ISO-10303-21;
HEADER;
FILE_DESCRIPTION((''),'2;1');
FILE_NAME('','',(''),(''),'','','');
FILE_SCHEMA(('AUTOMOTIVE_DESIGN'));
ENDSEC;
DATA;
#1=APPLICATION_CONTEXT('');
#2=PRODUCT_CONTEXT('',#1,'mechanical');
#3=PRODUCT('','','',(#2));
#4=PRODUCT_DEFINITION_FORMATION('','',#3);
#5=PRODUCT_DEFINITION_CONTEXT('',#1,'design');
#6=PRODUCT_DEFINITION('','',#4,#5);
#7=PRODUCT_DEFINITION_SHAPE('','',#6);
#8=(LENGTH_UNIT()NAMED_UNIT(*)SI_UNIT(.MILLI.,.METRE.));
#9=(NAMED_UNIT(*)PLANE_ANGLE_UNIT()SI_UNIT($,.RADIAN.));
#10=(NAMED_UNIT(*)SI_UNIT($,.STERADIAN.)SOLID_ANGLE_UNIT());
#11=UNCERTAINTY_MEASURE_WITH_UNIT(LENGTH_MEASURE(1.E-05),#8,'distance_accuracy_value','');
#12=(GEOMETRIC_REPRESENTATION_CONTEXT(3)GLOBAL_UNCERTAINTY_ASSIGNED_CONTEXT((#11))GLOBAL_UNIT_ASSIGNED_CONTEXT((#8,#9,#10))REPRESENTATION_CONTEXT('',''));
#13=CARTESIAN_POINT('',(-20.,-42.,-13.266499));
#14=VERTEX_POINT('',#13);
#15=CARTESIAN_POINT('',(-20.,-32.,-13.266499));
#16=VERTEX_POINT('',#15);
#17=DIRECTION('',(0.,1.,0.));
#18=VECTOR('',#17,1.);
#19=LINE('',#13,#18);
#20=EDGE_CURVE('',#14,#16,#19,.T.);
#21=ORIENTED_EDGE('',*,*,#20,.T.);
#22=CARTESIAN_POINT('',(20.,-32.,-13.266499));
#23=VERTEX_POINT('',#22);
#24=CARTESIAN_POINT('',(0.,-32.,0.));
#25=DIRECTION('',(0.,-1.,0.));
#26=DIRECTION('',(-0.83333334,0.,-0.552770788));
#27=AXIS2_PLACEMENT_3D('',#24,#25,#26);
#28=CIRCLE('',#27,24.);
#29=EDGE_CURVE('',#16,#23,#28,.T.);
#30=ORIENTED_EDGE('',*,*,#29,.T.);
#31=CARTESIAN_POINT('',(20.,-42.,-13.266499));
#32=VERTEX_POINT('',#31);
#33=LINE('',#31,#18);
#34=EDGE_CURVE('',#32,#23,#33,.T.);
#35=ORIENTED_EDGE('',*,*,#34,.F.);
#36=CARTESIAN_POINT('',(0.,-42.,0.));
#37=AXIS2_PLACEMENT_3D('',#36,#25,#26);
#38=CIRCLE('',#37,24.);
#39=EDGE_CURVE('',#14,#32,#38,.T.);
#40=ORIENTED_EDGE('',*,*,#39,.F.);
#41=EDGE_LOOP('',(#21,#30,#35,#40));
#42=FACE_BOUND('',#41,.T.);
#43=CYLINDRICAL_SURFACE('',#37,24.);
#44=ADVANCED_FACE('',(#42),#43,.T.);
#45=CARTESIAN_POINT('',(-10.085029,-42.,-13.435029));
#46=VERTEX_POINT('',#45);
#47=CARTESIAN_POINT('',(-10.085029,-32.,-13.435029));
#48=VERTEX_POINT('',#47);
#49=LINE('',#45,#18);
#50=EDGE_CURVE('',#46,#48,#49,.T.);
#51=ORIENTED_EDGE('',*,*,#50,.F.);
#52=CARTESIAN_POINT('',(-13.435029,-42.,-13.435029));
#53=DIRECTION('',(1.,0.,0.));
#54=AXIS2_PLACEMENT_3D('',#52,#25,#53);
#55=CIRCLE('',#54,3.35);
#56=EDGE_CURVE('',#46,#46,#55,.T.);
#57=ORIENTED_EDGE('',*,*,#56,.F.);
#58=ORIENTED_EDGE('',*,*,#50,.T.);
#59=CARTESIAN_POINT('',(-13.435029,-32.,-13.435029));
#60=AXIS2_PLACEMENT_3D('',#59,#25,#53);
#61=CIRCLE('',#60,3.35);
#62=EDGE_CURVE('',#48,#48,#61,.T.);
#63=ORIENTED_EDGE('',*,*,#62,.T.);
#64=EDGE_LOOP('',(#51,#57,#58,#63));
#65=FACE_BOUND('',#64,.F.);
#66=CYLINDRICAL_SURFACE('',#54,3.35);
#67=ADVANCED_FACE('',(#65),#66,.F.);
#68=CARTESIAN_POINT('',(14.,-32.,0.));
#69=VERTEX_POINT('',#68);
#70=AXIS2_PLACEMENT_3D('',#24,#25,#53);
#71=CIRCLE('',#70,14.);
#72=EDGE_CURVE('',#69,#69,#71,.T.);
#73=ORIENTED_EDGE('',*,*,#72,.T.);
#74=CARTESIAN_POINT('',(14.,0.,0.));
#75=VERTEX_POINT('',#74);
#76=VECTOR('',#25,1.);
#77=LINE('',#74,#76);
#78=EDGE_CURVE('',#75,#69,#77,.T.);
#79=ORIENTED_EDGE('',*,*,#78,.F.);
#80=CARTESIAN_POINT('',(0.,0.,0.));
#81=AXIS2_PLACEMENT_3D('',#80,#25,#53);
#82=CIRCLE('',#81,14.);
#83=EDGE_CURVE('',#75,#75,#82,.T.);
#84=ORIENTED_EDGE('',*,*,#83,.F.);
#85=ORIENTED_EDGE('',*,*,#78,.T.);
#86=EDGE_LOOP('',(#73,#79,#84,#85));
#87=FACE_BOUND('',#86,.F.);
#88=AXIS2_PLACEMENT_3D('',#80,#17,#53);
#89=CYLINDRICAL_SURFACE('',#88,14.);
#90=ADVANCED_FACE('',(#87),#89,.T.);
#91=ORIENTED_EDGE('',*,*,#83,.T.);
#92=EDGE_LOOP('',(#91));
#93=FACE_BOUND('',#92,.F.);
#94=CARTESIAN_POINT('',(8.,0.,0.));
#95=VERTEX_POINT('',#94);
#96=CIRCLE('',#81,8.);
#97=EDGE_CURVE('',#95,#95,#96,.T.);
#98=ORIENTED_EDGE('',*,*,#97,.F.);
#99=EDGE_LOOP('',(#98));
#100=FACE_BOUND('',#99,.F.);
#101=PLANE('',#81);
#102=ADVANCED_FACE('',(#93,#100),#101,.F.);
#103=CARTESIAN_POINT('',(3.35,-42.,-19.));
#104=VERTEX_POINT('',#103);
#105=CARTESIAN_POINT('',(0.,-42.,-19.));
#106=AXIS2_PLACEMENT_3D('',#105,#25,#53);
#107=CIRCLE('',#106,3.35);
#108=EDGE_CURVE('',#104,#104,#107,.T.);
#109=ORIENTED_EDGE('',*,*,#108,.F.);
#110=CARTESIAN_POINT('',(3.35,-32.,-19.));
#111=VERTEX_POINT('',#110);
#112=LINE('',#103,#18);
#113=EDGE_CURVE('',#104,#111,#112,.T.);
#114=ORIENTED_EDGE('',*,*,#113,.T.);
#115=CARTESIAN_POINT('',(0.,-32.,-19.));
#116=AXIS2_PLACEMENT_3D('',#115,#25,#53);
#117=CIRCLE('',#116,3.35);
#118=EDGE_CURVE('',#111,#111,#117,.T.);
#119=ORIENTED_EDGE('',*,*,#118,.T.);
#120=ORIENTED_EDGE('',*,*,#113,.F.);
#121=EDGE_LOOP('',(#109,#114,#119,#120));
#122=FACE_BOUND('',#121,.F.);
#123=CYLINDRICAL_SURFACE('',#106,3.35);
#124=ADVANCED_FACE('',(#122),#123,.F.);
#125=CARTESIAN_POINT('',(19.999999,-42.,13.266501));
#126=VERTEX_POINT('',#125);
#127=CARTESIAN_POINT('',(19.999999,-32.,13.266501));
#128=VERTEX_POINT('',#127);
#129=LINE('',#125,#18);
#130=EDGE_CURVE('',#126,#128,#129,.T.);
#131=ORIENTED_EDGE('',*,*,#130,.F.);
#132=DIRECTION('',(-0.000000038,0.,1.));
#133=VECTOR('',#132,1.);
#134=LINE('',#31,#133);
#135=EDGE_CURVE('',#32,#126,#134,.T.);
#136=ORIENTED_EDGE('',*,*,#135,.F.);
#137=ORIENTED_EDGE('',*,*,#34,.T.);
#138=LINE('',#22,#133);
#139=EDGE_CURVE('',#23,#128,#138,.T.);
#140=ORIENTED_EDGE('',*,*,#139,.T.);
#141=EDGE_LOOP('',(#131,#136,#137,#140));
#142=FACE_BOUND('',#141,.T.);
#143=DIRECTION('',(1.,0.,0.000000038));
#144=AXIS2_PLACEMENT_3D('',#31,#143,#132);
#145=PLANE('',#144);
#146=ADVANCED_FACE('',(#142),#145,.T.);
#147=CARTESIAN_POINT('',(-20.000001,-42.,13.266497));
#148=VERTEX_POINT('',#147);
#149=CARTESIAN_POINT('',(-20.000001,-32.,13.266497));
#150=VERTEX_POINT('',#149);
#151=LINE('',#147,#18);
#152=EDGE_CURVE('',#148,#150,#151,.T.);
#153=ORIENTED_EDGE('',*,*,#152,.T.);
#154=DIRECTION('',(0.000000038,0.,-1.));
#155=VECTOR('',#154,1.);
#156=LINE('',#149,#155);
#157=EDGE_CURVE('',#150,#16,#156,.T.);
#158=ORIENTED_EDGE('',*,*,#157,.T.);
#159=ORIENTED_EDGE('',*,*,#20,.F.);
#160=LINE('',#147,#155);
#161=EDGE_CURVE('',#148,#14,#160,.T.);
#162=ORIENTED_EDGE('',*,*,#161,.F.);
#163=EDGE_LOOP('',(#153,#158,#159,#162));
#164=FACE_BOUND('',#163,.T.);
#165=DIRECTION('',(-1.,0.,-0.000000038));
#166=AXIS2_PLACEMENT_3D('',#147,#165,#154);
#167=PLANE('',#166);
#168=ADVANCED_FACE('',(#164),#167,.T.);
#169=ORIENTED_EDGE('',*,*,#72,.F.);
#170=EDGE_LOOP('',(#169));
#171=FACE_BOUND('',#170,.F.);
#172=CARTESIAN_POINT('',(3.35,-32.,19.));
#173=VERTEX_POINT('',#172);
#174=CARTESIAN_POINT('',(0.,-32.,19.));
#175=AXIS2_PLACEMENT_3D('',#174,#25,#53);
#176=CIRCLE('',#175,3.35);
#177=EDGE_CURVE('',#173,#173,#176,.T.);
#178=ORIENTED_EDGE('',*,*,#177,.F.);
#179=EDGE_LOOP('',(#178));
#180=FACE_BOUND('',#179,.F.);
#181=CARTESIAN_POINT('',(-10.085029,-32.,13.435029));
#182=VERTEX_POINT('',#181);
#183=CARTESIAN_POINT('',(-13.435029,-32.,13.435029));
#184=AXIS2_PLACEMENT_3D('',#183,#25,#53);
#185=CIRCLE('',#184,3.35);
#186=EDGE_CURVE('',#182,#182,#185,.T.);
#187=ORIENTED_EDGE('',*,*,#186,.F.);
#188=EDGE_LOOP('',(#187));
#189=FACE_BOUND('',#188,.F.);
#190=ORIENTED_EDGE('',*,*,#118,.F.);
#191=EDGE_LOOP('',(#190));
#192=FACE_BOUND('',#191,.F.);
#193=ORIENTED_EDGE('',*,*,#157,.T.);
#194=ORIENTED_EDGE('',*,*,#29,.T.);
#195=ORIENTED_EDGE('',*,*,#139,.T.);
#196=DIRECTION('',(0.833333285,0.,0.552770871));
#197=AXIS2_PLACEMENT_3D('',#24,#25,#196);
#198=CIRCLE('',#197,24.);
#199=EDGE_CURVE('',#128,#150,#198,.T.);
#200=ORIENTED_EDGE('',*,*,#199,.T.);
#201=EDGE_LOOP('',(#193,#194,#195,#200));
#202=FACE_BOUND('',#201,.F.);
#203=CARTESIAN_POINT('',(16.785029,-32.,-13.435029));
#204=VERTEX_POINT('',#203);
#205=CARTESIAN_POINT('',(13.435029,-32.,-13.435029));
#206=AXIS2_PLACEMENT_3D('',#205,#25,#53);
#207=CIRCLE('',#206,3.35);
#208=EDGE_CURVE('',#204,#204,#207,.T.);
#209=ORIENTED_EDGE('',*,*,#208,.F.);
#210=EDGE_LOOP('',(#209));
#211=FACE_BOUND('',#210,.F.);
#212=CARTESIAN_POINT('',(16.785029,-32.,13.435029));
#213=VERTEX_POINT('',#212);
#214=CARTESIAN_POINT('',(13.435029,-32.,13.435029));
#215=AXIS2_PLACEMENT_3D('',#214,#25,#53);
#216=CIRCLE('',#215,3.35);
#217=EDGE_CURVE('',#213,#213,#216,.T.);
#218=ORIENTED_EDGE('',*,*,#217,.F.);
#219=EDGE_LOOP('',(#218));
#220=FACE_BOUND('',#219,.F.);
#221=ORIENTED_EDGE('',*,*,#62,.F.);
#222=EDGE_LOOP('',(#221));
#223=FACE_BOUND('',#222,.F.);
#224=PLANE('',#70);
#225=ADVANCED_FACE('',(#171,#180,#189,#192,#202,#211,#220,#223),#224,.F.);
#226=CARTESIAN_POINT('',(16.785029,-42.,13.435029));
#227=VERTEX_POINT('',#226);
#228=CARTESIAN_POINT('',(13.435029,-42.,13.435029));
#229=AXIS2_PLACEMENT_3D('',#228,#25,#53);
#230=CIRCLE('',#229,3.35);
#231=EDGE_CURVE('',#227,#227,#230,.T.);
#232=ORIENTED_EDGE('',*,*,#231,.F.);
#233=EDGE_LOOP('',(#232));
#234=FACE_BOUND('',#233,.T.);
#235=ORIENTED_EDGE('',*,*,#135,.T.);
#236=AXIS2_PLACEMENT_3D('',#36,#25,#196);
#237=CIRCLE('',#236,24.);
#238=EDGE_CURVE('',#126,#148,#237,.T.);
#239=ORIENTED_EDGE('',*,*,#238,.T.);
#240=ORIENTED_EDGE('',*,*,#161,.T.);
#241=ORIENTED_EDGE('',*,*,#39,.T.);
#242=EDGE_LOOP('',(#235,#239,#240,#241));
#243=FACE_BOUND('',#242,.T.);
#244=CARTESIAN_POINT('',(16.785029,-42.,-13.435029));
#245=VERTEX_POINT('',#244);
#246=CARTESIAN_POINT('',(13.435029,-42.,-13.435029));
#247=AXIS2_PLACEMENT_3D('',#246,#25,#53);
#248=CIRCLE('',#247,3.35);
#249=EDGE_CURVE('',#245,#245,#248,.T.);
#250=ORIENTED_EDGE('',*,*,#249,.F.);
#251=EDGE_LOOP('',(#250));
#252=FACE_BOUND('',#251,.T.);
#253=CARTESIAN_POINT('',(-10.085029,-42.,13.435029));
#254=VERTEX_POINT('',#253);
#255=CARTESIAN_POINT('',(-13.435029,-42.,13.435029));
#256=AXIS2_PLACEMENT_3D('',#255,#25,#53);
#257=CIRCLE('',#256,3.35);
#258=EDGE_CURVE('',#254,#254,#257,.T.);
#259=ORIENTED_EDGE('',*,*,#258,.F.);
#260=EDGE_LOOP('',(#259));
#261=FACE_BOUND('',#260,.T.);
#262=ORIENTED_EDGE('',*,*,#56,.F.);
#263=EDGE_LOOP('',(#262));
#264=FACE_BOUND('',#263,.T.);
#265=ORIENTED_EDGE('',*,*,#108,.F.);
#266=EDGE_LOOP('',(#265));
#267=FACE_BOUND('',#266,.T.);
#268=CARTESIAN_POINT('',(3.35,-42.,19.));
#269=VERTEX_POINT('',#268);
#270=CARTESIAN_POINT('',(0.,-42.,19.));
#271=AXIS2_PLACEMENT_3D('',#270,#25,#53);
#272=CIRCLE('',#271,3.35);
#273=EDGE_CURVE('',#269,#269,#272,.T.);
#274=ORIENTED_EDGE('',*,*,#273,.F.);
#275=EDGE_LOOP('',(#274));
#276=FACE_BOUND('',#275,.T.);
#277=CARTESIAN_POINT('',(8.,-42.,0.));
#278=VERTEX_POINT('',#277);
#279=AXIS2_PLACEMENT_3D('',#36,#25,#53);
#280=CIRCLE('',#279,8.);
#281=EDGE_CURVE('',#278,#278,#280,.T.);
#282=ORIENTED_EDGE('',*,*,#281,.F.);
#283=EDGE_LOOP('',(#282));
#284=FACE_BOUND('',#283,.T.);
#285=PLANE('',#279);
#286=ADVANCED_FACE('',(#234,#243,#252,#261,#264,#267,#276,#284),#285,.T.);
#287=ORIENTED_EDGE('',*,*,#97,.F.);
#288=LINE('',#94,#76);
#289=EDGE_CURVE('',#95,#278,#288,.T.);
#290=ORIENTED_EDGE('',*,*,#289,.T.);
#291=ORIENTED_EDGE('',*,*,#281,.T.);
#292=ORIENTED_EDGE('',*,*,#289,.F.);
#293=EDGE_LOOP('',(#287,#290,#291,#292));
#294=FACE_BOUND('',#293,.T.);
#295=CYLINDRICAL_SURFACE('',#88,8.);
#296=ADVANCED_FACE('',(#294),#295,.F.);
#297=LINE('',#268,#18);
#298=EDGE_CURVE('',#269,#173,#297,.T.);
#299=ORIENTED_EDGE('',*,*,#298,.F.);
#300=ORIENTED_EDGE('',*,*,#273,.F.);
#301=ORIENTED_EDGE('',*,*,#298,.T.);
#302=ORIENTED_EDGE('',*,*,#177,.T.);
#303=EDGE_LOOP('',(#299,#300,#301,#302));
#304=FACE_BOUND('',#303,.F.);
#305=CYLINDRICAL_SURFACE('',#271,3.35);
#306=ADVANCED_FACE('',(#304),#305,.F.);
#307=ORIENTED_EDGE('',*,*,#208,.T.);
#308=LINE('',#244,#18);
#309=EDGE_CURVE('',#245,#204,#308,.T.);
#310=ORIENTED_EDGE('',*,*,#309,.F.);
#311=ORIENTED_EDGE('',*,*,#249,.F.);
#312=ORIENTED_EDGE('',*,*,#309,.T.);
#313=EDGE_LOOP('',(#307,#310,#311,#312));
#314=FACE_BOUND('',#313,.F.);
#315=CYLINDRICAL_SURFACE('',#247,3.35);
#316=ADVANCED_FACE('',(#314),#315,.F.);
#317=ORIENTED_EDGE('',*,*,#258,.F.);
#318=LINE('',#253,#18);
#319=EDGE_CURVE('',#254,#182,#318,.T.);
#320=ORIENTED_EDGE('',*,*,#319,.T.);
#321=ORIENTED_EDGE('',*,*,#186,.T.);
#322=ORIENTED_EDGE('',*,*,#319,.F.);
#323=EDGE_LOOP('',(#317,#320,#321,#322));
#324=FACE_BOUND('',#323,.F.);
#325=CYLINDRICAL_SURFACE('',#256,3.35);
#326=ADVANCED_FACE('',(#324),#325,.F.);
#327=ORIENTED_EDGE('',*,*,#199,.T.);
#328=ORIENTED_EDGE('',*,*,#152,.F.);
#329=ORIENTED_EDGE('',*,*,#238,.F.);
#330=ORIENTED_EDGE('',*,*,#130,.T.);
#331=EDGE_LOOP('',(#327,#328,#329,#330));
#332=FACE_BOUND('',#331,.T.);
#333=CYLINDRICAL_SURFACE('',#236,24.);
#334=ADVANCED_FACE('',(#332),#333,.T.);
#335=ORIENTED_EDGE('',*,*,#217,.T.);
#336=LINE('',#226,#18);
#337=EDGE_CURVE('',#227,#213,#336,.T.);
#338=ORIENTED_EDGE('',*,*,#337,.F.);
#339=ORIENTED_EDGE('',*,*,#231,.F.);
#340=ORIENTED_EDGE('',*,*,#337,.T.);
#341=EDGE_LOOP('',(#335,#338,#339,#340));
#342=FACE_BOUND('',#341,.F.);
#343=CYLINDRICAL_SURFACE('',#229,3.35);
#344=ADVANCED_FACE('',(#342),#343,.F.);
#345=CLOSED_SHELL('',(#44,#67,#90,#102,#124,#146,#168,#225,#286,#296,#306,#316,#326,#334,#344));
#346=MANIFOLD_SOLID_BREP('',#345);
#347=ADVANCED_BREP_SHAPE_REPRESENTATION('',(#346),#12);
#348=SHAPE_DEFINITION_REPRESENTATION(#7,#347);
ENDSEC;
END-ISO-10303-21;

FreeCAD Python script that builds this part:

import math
import FreeCAD as App
import Part
import Sketcher

doc = App.newDocument("Part")
body = doc.addObject("PartDesign::Body", "Body")

# Sketch on XZ plane
sketch1 = body.newObject("Sketcher::SketchObject", "Sketch")
sketch1.AttachmentSupport = (doc.getObject("XZ_Plane"), [""])
sketch1.MapMode = "FlatFace"
sketch1.addGeometry([
    Part.Circle(App.Vector(0, 0, 0), App.Vector(0, 0, 1), 14),
    Part.Circle(App.Vector(0, 0, 0), App.Vector(0, 0, 1), 8),
], False)
sketch1.addConstraint([
    Sketcher.Constraint("Coincident", 0, 3, -1, 1),
    Sketcher.Constraint("Coincident", 1, 3, -1, 1),
    Sketcher.Constraint("Diameter", 0, 28.0),
    Sketcher.Constraint("Diameter", 1, 16.0),
])
pad1 = body.newObject("PartDesign::Pad", "Pad")
pad1.Profile = sketch1
pad1.Length = 42

# Sketch on XZ plane
sketch2 = body.newObject("Sketcher::SketchObject", "Sketch001")
sketch2.AttachmentSupport = (doc.getObject("XZ_Plane"), [""])
sketch2.MapMode = "FlatFace"
sketch2.AttachmentOffset = App.Placement(App.Vector(0, 0, 42), App.Rotation())
sketch2.addGeometry([
    Part.LineSegment(App.Vector(-20, 13.3, 0), App.Vector(-20, -13.3, 0)),  # 0
    Part.ArcOfCircle(Part.Circle(App.Vector(0, 0, 0), App.Vector(0, 0, 1), 24), math.radians(-146), math.radians(-34)),  # 1
    Part.LineSegment(App.Vector(20, -13.3, 0), App.Vector(20, 13.3, 0)),  # 2
    Part.ArcOfCircle(Part.Circle(App.Vector(0, 0, 0), App.Vector(0, 0, 1), 24), math.radians(34), math.radians(146)),  # 3
    Part.Circle(App.Vector(-13.4, -13.4, 0), App.Vector(0, 0, 1), 3.4),  # 4
    Part.Circle(App.Vector(0, -19, 0), App.Vector(0, 0, 1), 3.4),  # 5
    Part.Circle(App.Vector(13.4, -13.4, 0), App.Vector(0, 0, 1), 3.4),  # 6
    Part.Circle(App.Vector(-13.4, 13.4, 0), App.Vector(0, 0, 1), 3.4),  # 7
    Part.Circle(App.Vector(0, 0, 0), App.Vector(0, 0, 1), 14),  # 8
    Part.Circle(App.Vector(0, 19, 0), App.Vector(0, 0, 1), 3.4),  # 9
    Part.Circle(App.Vector(13.4, 13.4, 0), App.Vector(0, 0, 1), 3.4),  # 10
], False)
sketch2.addConstraint([
    Sketcher.Constraint("Coincident", 0, 2, 1, 1),
    Sketcher.Constraint("Coincident", 1, 2, 2, 1),
    Sketcher.Constraint("Coincident", 2, 2, 3, 1),
    Sketcher.Constraint("Coincident", 3, 2, 0, 1),
    Sketcher.Constraint("Vertical", 0),
    Sketcher.Constraint("Vertical", 2),
    Sketcher.Constraint("Coincident", 1, 3, -1, 1),
    Sketcher.Constraint("Coincident", 3, 3, -1, 1),
    Sketcher.Constraint("Coincident", 8, 3, -1, 1),
    Sketcher.Constraint("Equal", 1, 3),
    Sketcher.Constraint("Equal", 4, 5),
    Sketcher.Constraint("Equal", 5, 6),
    Sketcher.Constraint("Equal", 6, 7),
    Sketcher.Constraint("Equal", 7, 9),
    Sketcher.Constraint("Equal", 9, 10),
    Sketcher.Constraint("Symmetric", 6, 3, 7, 3, -1, 1),
    Sketcher.Constraint("Symmetric", 5, 3, 9, 3, -1, 1),
    Sketcher.Constraint("Symmetric", 4, 3, 10, 3, -1, 1),
    Sketcher.Constraint("Symmetric", 4, 3, 6, 3, -2),
    Sketcher.Constraint("PointOnObject", 5, 3, -2),
    Sketcher.Constraint("Horizontal", 0, 2, 1, 2),
    Sketcher.Constraint("Diameter", 8, 28.0),
    Sketcher.Constraint("Radius", 1, 24.0),
    Sketcher.Constraint("Diameter", 4, 6.7),
    Sketcher.Constraint("DistanceY", 5, 3, -1, 1, 19.0),
    Sketcher.Constraint("DistanceX", 0, 2, -1, 1, 20.0),
    Sketcher.Constraint("DistanceX", 4, 3, -1, 1, 13.435029),
    Sketcher.Constraint("DistanceY", 4, 3, -1, 1, 13.435029),
])
pad2 = body.newObject("PartDesign::Pad", "Pad001")
pad2.Profile = sketch2
pad2.Length = 10
pad2.Reversed = True

doc.recompute()
